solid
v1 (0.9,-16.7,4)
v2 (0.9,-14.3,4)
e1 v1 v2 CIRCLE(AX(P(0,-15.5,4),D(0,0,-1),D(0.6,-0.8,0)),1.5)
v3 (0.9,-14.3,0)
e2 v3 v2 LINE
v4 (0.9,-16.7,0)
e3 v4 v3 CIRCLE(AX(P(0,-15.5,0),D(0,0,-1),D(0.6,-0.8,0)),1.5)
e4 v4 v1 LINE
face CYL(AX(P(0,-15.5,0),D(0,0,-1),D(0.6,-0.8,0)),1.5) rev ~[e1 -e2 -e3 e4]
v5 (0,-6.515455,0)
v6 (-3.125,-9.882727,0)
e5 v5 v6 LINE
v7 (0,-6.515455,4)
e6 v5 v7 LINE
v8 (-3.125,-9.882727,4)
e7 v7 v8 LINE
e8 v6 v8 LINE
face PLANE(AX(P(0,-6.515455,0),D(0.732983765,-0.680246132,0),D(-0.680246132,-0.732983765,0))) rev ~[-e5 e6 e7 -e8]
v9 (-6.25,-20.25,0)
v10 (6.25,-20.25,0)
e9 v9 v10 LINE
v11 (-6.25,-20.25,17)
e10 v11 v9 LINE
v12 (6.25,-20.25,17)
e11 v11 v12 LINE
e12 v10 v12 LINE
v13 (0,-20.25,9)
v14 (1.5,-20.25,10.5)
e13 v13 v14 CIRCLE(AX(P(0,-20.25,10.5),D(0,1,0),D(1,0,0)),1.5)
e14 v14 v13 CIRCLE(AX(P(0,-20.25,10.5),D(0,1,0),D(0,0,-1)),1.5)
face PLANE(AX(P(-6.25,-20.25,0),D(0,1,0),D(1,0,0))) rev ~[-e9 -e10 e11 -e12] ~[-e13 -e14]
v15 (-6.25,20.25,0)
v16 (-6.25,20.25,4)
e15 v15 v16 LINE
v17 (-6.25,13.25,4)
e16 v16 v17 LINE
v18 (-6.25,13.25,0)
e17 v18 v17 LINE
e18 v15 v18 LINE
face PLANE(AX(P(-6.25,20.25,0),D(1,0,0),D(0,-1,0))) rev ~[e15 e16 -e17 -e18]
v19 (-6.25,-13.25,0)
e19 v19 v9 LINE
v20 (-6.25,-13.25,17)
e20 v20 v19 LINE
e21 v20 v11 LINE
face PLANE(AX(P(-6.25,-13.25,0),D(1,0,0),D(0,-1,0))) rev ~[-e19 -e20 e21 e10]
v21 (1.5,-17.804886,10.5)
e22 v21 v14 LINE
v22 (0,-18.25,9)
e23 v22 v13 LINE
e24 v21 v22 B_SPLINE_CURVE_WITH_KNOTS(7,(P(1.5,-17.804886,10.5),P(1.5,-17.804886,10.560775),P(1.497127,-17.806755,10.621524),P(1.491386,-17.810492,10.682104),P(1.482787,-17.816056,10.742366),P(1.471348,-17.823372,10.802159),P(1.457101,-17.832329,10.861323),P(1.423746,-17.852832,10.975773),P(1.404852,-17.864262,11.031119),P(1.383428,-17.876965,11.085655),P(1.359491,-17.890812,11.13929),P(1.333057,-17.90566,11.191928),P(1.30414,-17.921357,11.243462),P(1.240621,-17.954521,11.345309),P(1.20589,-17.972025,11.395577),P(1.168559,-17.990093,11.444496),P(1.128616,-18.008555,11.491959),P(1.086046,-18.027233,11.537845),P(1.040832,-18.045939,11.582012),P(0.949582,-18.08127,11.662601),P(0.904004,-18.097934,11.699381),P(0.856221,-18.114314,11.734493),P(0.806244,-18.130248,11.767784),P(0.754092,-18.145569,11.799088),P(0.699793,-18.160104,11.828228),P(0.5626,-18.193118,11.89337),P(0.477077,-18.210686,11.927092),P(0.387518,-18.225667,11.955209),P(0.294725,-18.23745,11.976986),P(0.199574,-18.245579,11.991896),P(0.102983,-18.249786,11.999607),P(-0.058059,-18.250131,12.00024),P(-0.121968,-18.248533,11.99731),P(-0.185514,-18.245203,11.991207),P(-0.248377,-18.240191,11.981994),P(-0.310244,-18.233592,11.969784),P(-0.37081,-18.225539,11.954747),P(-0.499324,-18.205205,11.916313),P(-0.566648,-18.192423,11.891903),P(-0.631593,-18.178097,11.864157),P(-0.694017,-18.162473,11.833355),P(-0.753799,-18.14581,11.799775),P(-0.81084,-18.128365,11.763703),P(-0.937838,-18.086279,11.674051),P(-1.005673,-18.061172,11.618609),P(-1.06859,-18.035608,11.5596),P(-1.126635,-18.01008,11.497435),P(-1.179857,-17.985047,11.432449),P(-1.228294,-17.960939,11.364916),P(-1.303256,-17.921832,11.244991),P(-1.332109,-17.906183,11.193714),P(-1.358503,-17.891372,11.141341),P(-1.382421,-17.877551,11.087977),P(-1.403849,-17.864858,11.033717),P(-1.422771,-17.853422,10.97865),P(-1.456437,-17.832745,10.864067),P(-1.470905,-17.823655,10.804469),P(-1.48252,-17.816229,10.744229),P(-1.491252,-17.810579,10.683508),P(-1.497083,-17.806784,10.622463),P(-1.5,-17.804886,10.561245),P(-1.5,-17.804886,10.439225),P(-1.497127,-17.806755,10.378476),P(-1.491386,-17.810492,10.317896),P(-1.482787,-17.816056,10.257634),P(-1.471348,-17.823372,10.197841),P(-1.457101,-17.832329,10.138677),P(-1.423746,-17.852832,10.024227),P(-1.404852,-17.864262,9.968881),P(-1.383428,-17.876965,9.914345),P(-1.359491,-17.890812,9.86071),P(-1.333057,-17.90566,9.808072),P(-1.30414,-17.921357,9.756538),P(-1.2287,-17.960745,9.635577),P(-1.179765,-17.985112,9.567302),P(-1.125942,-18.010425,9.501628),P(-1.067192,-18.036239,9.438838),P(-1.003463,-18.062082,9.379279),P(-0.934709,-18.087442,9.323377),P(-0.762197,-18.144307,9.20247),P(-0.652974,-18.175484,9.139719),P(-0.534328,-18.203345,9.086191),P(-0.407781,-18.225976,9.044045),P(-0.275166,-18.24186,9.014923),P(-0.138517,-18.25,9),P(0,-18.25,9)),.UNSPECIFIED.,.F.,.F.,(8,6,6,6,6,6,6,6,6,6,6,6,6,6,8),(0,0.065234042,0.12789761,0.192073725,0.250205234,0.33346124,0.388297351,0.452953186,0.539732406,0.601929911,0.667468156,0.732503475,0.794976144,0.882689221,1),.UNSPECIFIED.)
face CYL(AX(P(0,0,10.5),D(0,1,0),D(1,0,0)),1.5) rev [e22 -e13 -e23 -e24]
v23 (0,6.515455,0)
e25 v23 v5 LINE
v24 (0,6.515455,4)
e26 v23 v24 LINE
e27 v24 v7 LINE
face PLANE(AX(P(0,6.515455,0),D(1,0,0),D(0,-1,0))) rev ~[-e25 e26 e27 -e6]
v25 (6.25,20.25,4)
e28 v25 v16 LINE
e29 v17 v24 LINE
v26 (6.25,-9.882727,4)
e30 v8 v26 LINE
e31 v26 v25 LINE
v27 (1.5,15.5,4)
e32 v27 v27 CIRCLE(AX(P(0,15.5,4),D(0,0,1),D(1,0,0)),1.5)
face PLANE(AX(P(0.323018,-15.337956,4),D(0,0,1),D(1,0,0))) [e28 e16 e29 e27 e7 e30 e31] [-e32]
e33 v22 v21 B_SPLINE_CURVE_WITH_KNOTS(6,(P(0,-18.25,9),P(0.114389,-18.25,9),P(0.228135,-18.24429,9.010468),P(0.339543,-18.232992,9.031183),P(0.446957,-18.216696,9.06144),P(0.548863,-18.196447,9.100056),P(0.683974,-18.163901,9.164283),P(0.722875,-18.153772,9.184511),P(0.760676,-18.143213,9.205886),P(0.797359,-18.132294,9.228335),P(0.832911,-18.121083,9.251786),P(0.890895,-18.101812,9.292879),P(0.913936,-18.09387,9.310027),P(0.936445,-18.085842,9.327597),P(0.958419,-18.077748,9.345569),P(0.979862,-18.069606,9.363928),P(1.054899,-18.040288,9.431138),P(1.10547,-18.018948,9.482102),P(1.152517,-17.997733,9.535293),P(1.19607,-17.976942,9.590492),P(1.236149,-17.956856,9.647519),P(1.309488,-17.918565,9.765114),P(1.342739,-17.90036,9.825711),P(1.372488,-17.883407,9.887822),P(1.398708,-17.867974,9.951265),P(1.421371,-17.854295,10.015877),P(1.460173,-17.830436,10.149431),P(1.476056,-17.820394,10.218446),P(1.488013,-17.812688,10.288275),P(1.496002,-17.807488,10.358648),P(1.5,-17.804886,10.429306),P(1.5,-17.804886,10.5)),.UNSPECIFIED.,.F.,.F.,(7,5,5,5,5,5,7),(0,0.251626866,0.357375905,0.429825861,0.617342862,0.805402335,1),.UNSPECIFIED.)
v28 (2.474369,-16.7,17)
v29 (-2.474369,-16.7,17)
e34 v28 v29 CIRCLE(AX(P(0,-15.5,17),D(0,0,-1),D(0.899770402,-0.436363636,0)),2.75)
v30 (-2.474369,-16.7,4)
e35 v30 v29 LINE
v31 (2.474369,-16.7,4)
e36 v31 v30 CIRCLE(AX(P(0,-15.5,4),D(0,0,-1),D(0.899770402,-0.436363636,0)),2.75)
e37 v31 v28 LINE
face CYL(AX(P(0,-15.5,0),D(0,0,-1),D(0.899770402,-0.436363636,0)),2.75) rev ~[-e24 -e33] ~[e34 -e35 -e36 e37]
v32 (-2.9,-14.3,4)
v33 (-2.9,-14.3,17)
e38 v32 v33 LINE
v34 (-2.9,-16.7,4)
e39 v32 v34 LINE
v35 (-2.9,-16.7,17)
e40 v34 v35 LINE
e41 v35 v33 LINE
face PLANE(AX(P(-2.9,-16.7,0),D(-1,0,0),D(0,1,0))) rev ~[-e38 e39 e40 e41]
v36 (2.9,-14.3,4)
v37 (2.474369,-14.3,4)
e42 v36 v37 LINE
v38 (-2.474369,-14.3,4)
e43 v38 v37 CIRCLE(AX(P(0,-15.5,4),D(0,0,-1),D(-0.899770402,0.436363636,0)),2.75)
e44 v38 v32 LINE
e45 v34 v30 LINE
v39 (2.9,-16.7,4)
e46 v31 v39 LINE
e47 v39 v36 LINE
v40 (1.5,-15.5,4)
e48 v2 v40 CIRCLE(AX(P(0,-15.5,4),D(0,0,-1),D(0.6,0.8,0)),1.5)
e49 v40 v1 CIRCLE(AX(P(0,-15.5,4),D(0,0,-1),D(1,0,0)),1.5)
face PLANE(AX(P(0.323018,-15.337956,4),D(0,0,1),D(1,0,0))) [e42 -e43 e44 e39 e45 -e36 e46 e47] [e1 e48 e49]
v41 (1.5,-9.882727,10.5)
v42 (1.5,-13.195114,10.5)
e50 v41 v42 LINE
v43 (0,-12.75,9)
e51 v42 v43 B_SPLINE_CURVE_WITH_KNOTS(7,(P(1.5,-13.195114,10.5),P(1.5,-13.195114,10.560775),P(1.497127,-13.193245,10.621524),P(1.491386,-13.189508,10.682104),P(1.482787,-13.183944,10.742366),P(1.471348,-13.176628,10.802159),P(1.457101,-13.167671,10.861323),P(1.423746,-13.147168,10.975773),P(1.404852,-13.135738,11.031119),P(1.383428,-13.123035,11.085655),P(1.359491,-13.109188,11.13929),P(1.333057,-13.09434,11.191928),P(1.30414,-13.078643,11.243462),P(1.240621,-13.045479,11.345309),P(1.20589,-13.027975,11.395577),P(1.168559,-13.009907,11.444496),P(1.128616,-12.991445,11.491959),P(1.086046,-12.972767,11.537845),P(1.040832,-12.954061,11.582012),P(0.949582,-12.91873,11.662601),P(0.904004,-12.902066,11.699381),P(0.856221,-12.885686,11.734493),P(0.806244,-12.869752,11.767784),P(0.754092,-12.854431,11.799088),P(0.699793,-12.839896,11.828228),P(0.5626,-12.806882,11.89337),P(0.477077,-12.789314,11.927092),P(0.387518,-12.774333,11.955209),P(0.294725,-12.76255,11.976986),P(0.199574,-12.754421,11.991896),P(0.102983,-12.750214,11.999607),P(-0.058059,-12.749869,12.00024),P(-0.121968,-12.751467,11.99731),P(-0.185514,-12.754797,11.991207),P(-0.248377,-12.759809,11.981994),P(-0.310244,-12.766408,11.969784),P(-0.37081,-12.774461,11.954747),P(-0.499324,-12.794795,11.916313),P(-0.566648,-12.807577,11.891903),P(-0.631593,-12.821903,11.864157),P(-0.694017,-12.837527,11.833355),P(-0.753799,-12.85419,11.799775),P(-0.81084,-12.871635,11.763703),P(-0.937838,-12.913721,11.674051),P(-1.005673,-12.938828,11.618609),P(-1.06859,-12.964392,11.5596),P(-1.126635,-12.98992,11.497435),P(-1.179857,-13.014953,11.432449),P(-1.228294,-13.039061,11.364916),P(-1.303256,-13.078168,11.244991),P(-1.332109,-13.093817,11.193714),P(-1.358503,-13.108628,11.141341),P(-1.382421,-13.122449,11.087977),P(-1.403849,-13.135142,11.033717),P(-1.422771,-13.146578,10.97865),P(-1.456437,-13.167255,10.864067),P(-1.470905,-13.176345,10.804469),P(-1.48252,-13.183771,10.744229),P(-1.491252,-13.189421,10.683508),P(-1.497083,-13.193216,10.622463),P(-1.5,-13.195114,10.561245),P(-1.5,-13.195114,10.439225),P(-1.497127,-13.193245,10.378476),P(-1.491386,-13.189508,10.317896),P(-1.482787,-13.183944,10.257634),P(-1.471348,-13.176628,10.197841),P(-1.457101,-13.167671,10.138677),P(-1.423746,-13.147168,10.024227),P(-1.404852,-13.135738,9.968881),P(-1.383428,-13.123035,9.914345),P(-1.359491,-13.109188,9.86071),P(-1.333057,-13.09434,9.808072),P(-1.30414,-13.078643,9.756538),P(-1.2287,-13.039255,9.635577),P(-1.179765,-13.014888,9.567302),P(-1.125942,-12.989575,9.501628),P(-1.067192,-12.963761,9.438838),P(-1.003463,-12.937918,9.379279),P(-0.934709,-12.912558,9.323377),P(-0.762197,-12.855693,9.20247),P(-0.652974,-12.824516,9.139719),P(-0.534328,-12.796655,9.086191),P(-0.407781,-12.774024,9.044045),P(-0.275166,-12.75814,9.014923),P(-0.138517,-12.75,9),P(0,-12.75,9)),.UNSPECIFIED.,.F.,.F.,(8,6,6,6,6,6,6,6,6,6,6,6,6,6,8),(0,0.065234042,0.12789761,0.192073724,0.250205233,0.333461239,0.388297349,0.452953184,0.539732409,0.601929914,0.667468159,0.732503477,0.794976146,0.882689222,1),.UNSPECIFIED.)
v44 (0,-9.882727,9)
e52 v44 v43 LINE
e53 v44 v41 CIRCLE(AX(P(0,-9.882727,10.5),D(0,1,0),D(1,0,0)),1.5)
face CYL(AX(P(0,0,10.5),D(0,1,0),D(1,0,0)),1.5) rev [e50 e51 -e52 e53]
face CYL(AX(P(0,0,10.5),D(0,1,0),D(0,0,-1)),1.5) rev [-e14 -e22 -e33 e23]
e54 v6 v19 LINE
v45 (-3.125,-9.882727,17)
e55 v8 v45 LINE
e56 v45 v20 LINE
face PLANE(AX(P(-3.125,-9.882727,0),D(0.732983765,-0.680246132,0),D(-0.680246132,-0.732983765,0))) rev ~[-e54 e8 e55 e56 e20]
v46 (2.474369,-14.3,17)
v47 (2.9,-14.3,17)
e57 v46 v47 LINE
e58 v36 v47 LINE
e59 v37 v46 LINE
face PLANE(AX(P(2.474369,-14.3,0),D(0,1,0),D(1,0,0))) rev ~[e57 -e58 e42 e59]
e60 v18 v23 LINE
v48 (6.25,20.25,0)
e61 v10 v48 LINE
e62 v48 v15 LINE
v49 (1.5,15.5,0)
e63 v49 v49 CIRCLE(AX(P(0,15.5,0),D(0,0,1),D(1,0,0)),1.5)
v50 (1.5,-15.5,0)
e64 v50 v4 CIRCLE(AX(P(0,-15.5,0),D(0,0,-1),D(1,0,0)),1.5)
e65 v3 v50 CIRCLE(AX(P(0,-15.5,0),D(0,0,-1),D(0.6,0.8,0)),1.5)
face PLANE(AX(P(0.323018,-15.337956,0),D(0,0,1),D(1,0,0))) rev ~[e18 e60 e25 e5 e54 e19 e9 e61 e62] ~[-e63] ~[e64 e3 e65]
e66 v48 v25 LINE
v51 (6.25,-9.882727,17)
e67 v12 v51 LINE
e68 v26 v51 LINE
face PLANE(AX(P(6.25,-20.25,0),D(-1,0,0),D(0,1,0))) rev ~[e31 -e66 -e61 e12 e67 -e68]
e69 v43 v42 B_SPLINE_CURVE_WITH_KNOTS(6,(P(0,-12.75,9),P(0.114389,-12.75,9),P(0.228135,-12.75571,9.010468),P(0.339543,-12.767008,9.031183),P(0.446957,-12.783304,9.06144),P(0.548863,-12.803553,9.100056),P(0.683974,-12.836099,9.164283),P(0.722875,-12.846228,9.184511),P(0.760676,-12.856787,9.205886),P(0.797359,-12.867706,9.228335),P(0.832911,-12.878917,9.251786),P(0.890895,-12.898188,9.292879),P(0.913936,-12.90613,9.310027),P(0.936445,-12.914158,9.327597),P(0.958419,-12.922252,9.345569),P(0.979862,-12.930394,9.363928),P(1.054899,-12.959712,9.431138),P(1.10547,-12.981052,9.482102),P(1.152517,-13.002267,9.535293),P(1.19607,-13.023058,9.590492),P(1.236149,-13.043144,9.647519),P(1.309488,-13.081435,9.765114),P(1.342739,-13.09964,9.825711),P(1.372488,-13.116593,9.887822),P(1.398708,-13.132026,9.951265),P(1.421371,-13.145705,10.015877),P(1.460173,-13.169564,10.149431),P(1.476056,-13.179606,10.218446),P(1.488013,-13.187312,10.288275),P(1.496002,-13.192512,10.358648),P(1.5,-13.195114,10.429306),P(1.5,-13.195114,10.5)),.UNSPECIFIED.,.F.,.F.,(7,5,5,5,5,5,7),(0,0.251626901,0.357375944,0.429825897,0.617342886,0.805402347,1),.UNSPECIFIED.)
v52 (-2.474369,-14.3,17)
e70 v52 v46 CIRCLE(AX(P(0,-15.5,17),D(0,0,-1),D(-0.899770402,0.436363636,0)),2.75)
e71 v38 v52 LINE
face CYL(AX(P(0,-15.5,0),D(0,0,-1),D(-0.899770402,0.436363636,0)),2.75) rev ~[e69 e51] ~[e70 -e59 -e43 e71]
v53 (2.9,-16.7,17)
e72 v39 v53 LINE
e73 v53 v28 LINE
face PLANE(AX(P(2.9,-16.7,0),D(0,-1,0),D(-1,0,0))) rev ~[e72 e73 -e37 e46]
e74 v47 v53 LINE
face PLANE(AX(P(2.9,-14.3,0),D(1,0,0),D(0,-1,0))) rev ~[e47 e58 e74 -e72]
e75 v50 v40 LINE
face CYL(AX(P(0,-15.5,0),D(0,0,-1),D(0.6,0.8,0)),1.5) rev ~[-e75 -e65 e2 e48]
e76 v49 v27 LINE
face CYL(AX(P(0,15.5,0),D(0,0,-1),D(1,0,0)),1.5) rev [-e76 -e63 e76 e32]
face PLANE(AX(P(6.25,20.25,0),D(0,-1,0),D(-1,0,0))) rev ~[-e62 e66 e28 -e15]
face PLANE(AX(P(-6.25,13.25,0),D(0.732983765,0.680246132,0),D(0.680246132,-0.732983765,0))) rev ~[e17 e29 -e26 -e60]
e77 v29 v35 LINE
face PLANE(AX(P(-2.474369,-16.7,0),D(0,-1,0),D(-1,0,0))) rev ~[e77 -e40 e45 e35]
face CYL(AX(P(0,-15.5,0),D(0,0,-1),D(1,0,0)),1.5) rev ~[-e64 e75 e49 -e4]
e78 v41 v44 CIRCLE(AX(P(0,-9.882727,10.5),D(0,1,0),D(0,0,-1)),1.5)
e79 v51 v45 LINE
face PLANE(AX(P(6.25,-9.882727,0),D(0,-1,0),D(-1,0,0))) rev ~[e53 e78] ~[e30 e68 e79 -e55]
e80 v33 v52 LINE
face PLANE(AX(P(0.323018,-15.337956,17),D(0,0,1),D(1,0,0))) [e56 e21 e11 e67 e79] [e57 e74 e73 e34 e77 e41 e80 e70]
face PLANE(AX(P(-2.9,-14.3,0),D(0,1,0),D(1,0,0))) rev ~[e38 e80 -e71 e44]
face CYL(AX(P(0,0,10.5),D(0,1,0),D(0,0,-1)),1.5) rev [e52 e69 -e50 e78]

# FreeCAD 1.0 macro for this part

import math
import FreeCAD as App
import Part
import Sketcher
Q = App.Units.Quantity


def add_polygon(sketch, points):
    """Adds a closed chain of lines whose ends are joined by coincident constraints."""
    first, n = sketch.GeometryCount, len(points)
    for a, b in zip(points, points[1:] + points[:1]):
        sketch.addGeometry(Part.LineSegment(App.Vector(*a, 0), App.Vector(*b, 0)), False)
    for i in range(n):
        sketch.addConstraint(Sketcher.Constraint("Coincident", first + i, 2, first + (i + 1) % n, 1))

doc = App.newDocument("Part")
body = doc.addObject("PartDesign::Body", "Body")

sketch1 = doc.addObject("Sketcher::SketchObject", "Sketch")
body.addObject(sketch1)
sketch1.AttachmentSupport = (doc.XY_Plane, [""])
sketch1.MapMode = "FlatFace"
add_polygon(sketch1, [(-6.2, -20.2), (6.2, -20.2), (6.2, 20.2), (-6.2, 20.2), (-6.2, 13.2), (0, 6.5), (0, -6.5), (-3.1, -9.9), (-6.2, -13.2)])
sketch1.addGeometry(Part.ArcOfCircle(Part.Circle(App.Vector(0, -15.5, 0), App.Vector(0, 0, 1), 1.5), math.radians(53), math.radians(307)), False)
sketch1.addGeometry(Part.ArcOfCircle(Part.Circle(App.Vector(0, -15.5, 0), App.Vector(0, 0, 1), 1.5), math.radians(0), math.radians(53)), False)
sketch1.addGeometry(Part.ArcOfCircle(Part.Circle(App.Vector(0, -15.5, 0), App.Vector(0, 0, 1), 1.5), math.radians(-53), math.radians(0)), False)
sketch1.addGeometry(Part.Circle(App.Vector(0, 15.5, 0), App.Vector(0, 0, 1), 1.5), False)
sketch1.addConstraint(Sketcher.Constraint("Tangent", 9, 1, 10, 2))
sketch1.addConstraint(Sketcher.Constraint("Tangent", 10, 1, 11, 2))
sketch1.addConstraint(Sketcher.Constraint("Tangent", 11, 1, 9, 2))
sketch1.addConstraint(Sketcher.Constraint("Horizontal", 0))
sketch1.addConstraint(Sketcher.Constraint("Vertical", 1))
sketch1.addConstraint(Sketcher.Constraint("Horizontal", 2))
sketch1.addConstraint(Sketcher.Constraint("Vertical", 3))
sketch1.addConstraint(Sketcher.Constraint("Vertical", 5))
sketch1.addConstraint(Sketcher.Constraint("Vertical", 8))
sketch1.addConstraint(Sketcher.Constraint("Equal", 11, 12))
sketch1.addConstraint(Sketcher.Constraint("Symmetric", 9, 3, 12, 3, -1, 1))
sketch1.addConstraint(Sketcher.Constraint("Symmetric", 0, 2, 2, 2, -1, 1))
sketch1.addConstraint(Sketcher.Constraint("Symmetric", 4, 2, 5, 2, -1, 1))
sketch1.addConstraint(Sketcher.Constraint("Symmetric", 3, 2, 7, 2, -1))
sketch1.addConstraint(Sketcher.Constraint("PointOnObject", 9, 3, -2))
sketch1.addConstraint(Sketcher.Constraint("Parallel", 6, 7))
sketch1.addConstraint(Sketcher.Constraint("Horizontal", 11, 3, 10, 1))
sketch1.addConstraint(Sketcher.Constraint("Vertical", 9, 1, 11, 1))
sketch1.addConstraint(Sketcher.Constraint("Equal", 6, 7))
sketch1.addConstraint(Sketcher.Constraint("Diameter", 12, Q("3 mm")))
sketch1.addConstraint(Sketcher.Constraint("DistanceY", 3, 2, 3, 1, Q("7 mm")))
sketch1.addConstraint(Sketcher.Constraint("DistanceX", 0, 1, 0, 2, Q("12.5 mm")))
sketch1.addConstraint(Sketcher.Constraint("DistanceY", 1, 1, 1, 2, Q("40.5 mm")))
sketch1.addConstraint(Sketcher.Constraint("DistanceY", 9, 3, 12, 3, Q("31 mm")))
sketch1.addConstraint(Sketcher.Constraint("DistanceX", -1, 1, 9, 1, Q("0.9 mm")))
sketch1.addConstraint(Sketcher.Constraint("DistanceY", 5, 2, 5, 1, Q("13.030909 mm")))
pad1 = doc.addObject("PartDesign::Pad", "Pad")
body.addObject(pad1)
pad1.Profile = sketch1
pad1.Length = 4

sketch2 = doc.addObject("Sketcher::SketchObject", "Sketch001")
body.addObject(sketch2)
sketch2.AttachmentSupport = (doc.XY_Plane, [""])
sketch2.MapMode = "FlatFace"
add_polygon(sketch2, [(-6.25, -20.25), (6.25, -20.25), (6.25, -9.88), (-3.12, -9.88), (-6.25, -13.25)])
sketch2.addGeometry(Part.LineSegment(App.Vector(-2.9, -14.3, 0), App.Vector(-2.47, -14.3, 0)), False)
sketch2.addGeometry(Part.ArcOfCircle(Part.Circle(App.Vector(0, -15.5, 0), App.Vector(0, 0, 1), 2.75), math.radians(26), math.radians(154)), False)
sketch2.addGeometry(Part.LineSegment(App.Vector(2.47, -14.3, 0), App.Vector(2.9, -14.3, 0)), False)
sketch2.addGeometry(Part.LineSegment(App.Vector(2.9, -14.3, 0), App.Vector(2.9, -16.7, 0)), False)
sketch2.addGeometry(Part.LineSegment(App.Vector(2.9, -16.7, 0), App.Vector(2.47, -16.7, 0)), False)
sketch2.addGeometry(Part.ArcOfCircle(Part.Circle(App.Vector(0, -15.5, 0), App.Vector(0, 0, 1), 2.75), math.radians(-154), math.radians(-26)), False)
sketch2.addGeometry(Part.LineSegment(App.Vector(-2.47, -16.7, 0), App.Vector(-2.9, -16.7, 0)), False)
sketch2.addGeometry(Part.LineSegment(App.Vector(-2.9, -16.7, 0), App.Vector(-2.9, -14.3, 0)), False)
sketch2.addConstraint(Sketcher.Constraint("Coincident", 5, 2, 6, 2))
sketch2.addConstraint(Sketcher.Constraint("Coincident", 6, 1, 7, 1))
sketch2.addConstraint(Sketcher.Constraint("Coincident", 7, 2, 8, 1))
sketch2.addConstraint(Sketcher.Constraint("Coincident", 8, 2, 9, 1))
sketch2.addConstraint(Sketcher.Constraint("Coincident", 9, 2, 10, 2))
sketch2.addConstraint(Sketcher.Constraint("Coincident", 10, 1, 11, 1))
sketch2.addConstraint(Sketcher.Constraint("Coincident", 11, 2, 12, 1))
sketch2.addConstraint(Sketcher.Constraint("Coincident", 12, 2, 5, 1))
sketch2.addConstraint(Sketcher.Constraint("Horizontal", 0))
sketch2.addConstraint(Sketcher.Constraint("Vertical", 1))
sketch2.addConstraint(Sketcher.Constraint("Horizontal", 2))
sketch2.addConstraint(Sketcher.Constraint("Vertical", 4))
sketch2.addConstraint(Sketcher.Constraint("Horizontal", 5))
sketch2.addConstraint(Sketcher.Constraint("Horizontal", 7))
sketch2.addConstraint(Sketcher.Constraint("Vertical", 8))
sketch2.addConstraint(Sketcher.Constraint("Horizontal", 9))
sketch2.addConstraint(Sketcher.Constraint("Horizontal", 11))
sketch2.addConstraint(Sketcher.Constraint("Vertical", 12))
sketch2.addConstraint(Sketcher.Constraint("Coincident", 10, 3, 6, 3))
sketch2.addConstraint(Sketcher.Constraint("Equal", 6, 10))
sketch2.addConstraint(Sketcher.Constraint("Symmetric", 5, 2, 6, 1, -2))
sketch2.addConstraint(Sketcher.Constraint("Symmetric", 8, 2, 11, 2, -2))
sketch2.addConstraint(Sketcher.Constraint("Vertical", 6, 1, 9, 2))
sketch2.addConstraint(Sketcher.Constraint("DistanceY", 4, 2, 4, 1, Q("7 mm")))
sketch2.addConstraint(Sketcher.Constraint("Radius", 6, Q("2.75 mm")))
sketch2.addConstraint(Sketcher.Constraint("DistanceX", 0, 1, 0, 2, Q("12.5 mm")))
sketch2.addConstraint(Sketcher.Constraint("DistanceY", 8, 2, 8, 1, Q("2.4 mm")))
sketch2.addConstraint(Sketcher.Constraint("DistanceY", 6, 3, -1, 1, Q("15.5 mm")))
sketch2.addConstraint(Sketcher.Constraint("DistanceX", -1, 1, 7, 2, Q("2.9 mm")))
sketch2.addConstraint(Sketcher.Constraint("DistanceX", 2, 2, 2, 1, Q("9.375 mm")))
sketch2.addConstraint(Sketcher.Constraint("DistanceX", -1, 1, 0, 2, Q("6.25 mm")))
sketch2.addConstraint(Sketcher.Constraint("DistanceY", 0, 2, -1, 1, Q("20.25 mm")))
sketch2.addConstraint(Sketcher.Constraint("DistanceY", 1, 1, 1, 2, Q("10.367273 mm")))
pad2 = doc.addObject("PartDesign::Pad", "Pad001")
body.addObject(pad2)
pad2.Profile = sketch2
pad2.Length = 17

sketch3 = doc.addObject("Sketcher::SketchObject", "Sketch002")
body.addObject(sketch3)
sketch3.AttachmentSupport = (doc.XZ_Plane, [""])
sketch3.MapMode = "FlatFace"
sketch3.addGeometry(Part.ArcOfCircle(Part.Circle(App.Vector(0, 10.5, 0), App.Vector(0, 0, 1), 1.5), math.radians(-90), math.radians(0)), False)
sketch3.addGeometry(Part.ArcOfCircle(Part.Circle(App.Vector(0, 10.5, 0), App.Vector(0, 0, 1), 1.5), math.radians(0), math.radians(270)), False)
sketch3.addConstraint(Sketcher.Constraint("Tangent", 0, 1, 1, 2))
sketch3.addConstraint(Sketcher.Constraint("Coincident", 1, 1, 0, 2))
sketch3.addConstraint(Sketcher.Constraint("PointOnObject", 0, 3, -2))
sketch3.addConstraint(Sketcher.Constraint("PointOnObject", 0, 1, -2))
sketch3.addConstraint(Sketcher.Constraint("Horizontal", 0, 3, 1, 1))
sketch3.addConstraint(Sketcher.Constraint("Radius", 0, Q("1.5 mm")))
sketch3.addConstraint(Sketcher.Constraint("DistanceY", -1, 1, 0, 1, Q("9 mm")))
pocket1 = doc.addObject("PartDesign::Pocket", "Pocket")
body.addObject(pocket1)
pocket1.Profile = sketch3
pocket1.Length = 25
pocket1.Reversed = True

doc.recompute()
